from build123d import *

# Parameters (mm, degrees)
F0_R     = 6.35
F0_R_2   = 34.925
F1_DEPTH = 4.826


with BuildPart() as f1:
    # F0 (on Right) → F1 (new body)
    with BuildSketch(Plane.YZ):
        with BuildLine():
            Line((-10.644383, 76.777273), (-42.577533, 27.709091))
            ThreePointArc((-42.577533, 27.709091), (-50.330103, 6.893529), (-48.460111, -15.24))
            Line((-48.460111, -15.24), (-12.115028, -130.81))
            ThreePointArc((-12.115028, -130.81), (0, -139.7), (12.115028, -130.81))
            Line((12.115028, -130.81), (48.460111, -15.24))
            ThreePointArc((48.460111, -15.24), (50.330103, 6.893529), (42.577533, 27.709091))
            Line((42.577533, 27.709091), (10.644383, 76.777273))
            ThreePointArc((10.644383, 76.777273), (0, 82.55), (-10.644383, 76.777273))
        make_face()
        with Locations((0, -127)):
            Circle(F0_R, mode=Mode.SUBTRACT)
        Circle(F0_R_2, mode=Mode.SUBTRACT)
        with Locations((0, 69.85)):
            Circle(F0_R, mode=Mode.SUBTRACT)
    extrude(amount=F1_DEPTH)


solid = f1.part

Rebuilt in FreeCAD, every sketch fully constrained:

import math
import FreeCAD as App
import Part
import Sketcher
from FreeCAD import Vector
Q = App.Units.Quantity

doc = App.newDocument("Part")
body = doc.addObject("PartDesign::Body", "Body")

# Sketch on YZ plane
sketch1 = doc.addObject("Sketcher::SketchObject", "Sketch")
body.addObject(sketch1)
sketch1.AttachmentSupport = (doc.YZ_Plane, [""])
sketch1.MapMode = "FlatFace"
sketch1.addGeometry([
    Part.LineSegment(Vector(-10.644383, 76.777273, 0), Vector(-42.577533, 27.709091, 0)),  # 0
    Part.ArcOfCircle(Part.Circle(Vector(-0.000001, 0.000001, 0), Vector(0, 0, 1), 50.799999), math.radians(146.944269), math.radians(197.457605)),  # 1
    Part.LineSegment(Vector(-48.460111, -15.24, 0), Vector(-12.115028, -130.81, 0)),  # 2
    Part.ArcOfCircle(Part.Circle(Vector(0, -127, 0), Vector(0, 0, 1), 12.7), math.radians(-162.542396), math.radians(-17.457604)),  # 3
    Part.LineSegment(Vector(12.115028, -130.81, 0), Vector(48.460111, -15.24, 0)),  # 4
    Part.ArcOfCircle(Part.Circle(Vector(0.000001, 0.000001, 0), Vector(0, 0, 1), 50.799999), math.radians(-17.457605), math.radians(33.055731)),  # 5
    Part.LineSegment(Vector(42.577533, 27.709091, 0), Vector(10.644383, 76.777273, 0)),  # 6
    Part.ArcOfCircle(Part.Circle(Vector(0, 69.85, 0), Vector(0, 0, 1), 12.7), math.radians(33.055733), math.radians(146.944267)),  # 7
    Part.Circle(Vector(0, -127, 0), Vector(0, 0, 1), 6.35),  # 8
    Part.Circle(Vector(0, 0, 0), Vector(0, 0, 1), 34.925),  # 9
    Part.Circle(Vector(0, 69.85, 0), Vector(0, 0, 1), 6.35),  # 10
], False)
sketch1.addConstraint([
    Sketcher.Constraint("Tangent", 0, 2, 1, 1),
    Sketcher.Constraint("Tangent", 1, 2, 2, 1),
    Sketcher.Constraint("Tangent", 2, 2, 3, 1),
    Sketcher.Constraint("Tangent", 3, 2, 4, 1),
    Sketcher.Constraint("Tangent", 4, 2, 5, 1),
    Sketcher.Constraint("Tangent", 5, 2, 6, 1),
    Sketcher.Constraint("Tangent", 6, 2, 7, 1),
    Sketcher.Constraint("Tangent", 7, 2, 0, 1),
    Sketcher.Constraint("Coincident", 1, 3, -1, 1),
    Sketcher.Constraint("Coincident", 5, 3, -1, 1),
    Sketcher.Constraint("Coincident", 9, 3, -1, 1),
    Sketcher.Constraint("Coincident", 8, 3, 3, 3),
    Sketcher.Constraint("Coincident", 10, 3, 7, 3),
    Sketcher.Constraint("Equal", 1, 5),
    Sketcher.Constraint("Equal", 3, 7),
    Sketcher.Constraint("Equal", 8, 10),
    Sketcher.Constraint("PointOnObject", 3, 3, -2),
    Sketcher.Constraint("PointOnObject", 7, 3, -2),
    Sketcher.Constraint("Radius", 1, Q("2 in")),
    Sketcher.Constraint("Diameter", 8, Q("0.5 in")),
    Sketcher.Constraint("Radius", 3, Q("0.5 in")),
    Sketcher.Constraint("Diameter", 9, Q("2.75 in")),
    Sketcher.Constraint("DistanceY", 3, 3, -1, 1, Q("5 in")),
    Sketcher.Constraint("DistanceY", -1, 1, 7, 3, Q("2.75 in")),
])
pad1 = doc.addObject("PartDesign::Pad", "Pad")
body.addObject(pad1)
pad1.Profile = sketch1
pad1.Length = Q("0.19 in")

doc.recompute()
